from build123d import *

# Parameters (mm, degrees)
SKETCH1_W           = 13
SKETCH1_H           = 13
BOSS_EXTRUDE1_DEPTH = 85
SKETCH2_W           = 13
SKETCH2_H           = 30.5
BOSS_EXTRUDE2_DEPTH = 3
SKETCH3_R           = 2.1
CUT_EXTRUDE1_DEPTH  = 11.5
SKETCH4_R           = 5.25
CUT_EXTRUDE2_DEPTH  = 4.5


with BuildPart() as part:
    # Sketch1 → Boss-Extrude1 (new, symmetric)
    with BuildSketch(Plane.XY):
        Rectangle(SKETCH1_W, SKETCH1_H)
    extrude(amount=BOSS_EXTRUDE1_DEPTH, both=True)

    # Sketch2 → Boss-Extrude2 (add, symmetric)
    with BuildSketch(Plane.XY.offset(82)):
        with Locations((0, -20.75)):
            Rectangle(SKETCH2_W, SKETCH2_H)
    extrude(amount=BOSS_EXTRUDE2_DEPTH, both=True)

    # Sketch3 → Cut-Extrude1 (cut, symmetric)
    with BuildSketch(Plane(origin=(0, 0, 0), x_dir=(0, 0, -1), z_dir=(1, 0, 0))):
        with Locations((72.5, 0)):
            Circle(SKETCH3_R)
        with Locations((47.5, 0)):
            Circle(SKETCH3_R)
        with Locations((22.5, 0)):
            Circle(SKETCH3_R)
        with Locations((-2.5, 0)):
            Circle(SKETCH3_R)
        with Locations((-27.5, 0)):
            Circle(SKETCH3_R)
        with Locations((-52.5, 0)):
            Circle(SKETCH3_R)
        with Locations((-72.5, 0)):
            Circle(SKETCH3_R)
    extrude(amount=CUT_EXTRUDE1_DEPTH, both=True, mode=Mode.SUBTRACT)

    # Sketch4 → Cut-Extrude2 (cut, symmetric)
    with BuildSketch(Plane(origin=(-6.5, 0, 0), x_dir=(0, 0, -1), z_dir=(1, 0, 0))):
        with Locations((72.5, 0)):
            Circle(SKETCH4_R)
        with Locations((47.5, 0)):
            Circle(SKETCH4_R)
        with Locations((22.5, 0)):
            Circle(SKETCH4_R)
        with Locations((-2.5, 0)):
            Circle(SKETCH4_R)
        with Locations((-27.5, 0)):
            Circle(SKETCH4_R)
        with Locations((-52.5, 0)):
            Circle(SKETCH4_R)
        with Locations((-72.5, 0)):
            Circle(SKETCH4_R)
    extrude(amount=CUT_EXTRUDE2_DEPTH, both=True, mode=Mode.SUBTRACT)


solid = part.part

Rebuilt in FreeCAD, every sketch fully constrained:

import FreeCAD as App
import Part
import Sketcher

V = App.Vector


def add_polygon(sketch, points):
    """Adds a closed chain of lines whose ends are joined by coincident constraints."""
    first, n = sketch.GeometryCount, len(points)
    for a, b in zip(points, points[1:] + points[:1]):
        sketch.addGeometry(Part.LineSegment(App.Vector(*a, 0), App.Vector(*b, 0)), False)
    for i in range(n):
        sketch.addConstraint(Sketcher.Constraint("Coincident", first + i, 2, first + (i + 1) % n, 1))

doc = App.newDocument("Part")
body = doc.addObject("PartDesign::Body", "Body")

# Sketch on XY plane
sketch1 = body.newObject("Sketcher::SketchObject", "Sketch")
sketch1.AttachmentSupport = (doc.getObject("XY_Plane"), [""])
sketch1.MapMode = "FlatFace"
add_polygon(sketch1, [(-6, 6), (-6, -6), (6, -6), (6, 6)])  # lines 0-3
sketch1.addConstraint(Sketcher.Constraint("Vertical", 0))
sketch1.addConstraint(Sketcher.Constraint("Horizontal", 1))
sketch1.addConstraint(Sketcher.Constraint("Vertical", 2))
sketch1.addConstraint(Sketcher.Constraint("Horizontal", 3))
sketch1.addConstraint(Sketcher.Constraint("Symmetric", 0, 2, 2, 2, -1, 1))
sketch1.addConstraint(Sketcher.Constraint("Equal", 3, 0))
sketch1.addConstraint(Sketcher.Constraint("DistanceX", 1, 1, 1, 2, 13.0))
pad1 = body.newObject("PartDesign::Pad", "Pad")
pad1.Profile = sketch1
pad1.Length = 170
pad1.Midplane = True

# Sketch on XY plane
sketch2 = body.newObject("Sketcher::SketchObject", "Sketch001")
sketch2.AttachmentSupport = (doc.getObject("XY_Plane"), [""])
sketch2.MapMode = "FlatFace"
sketch2.AttachmentOffset = App.Placement(V(0, 0, 82), App.Rotation())
add_polygon(sketch2, [(-6, -6), (-6, -36), (6, -36), (6, -6)])  # lines 0-3
sketch2.addConstraint(Sketcher.Constraint("Vertical", 0))
sketch2.addConstraint(Sketcher.Constraint("Horizontal", 1))
sketch2.addConstraint(Sketcher.Constraint("Vertical", 2))
sketch2.addConstraint(Sketcher.Constraint("Horizontal", 3))
sketch2.addConstraint(Sketcher.Constraint("DistanceX", 1, 1, 1, 2, 13.0))
sketch2.addConstraint(Sketcher.Constraint("DistanceY", 0, 2, 0, 1, 30.5))
sketch2.addConstraint(Sketcher.Constraint("DistanceY", 0, 2, -1, 1, 36.0))
sketch2.addConstraint(Sketcher.Constraint("DistanceX", 0, 2, -1, 1, 6.5))
pad2 = body.newObject("PartDesign::Pad", "Pad001")
pad2.Profile = sketch2
pad2.Length = 6
pad2.Midplane = True

# Sketch on YZ plane
sketch3 = body.newObject("Sketcher::SketchObject", "Sketch002")
sketch3.AttachmentSupport = (doc.getObject("YZ_Plane"), [""])
sketch3.MapMode = "FlatFace"
sketch3.addGeometry(Part.Circle(V(0, -72.5, 0), V(0, 0, 1), 2.1), False)
sketch3.addGeometry(Part.Circle(V(0, -47.5, 0), V(0, 0, 1), 2.1), False)
sketch3.addGeometry(Part.Circle(V(0, -22.5, 0), V(0, 0, 1), 2.1), False)
sketch3.addGeometry(Part.Circle(V(0, 2.5, 0), V(0, 0, 1), 2.1), False)
sketch3.addGeometry(Part.Circle(V(0, 27.5, 0), V(0, 0, 1), 2.1), False)
sketch3.addGeometry(Part.Circle(V(0, 52.5, 0), V(0, 0, 1), 2.1), False)
sketch3.addGeometry(Part.Circle(V(0, 72.5, 0), V(0, 0, 1), 2.1), False)
sketch3.addConstraint(Sketcher.Constraint("Equal", 0, 1))
sketch3.addConstraint(Sketcher.Constraint("Equal", 1, 2))
sketch3.addConstraint(Sketcher.Constraint("Equal", 2, 3))
sketch3.addConstraint(Sketcher.Constraint("Equal", 3, 4))
sketch3.addConstraint(Sketcher.Constraint("Equal", 4, 5))
sketch3.addConstraint(Sketcher.Constraint("Equal", 5, 6))
sketch3.addConstraint(Sketcher.Constraint("Symmetric", 0, 3, 6, 3, -1, 1))
sketch3.addConstraint(Sketcher.Constraint("PointOnObject", 0, 3, -2))
sketch3.addConstraint(Sketcher.Constraint("PointOnObject", 1, 3, -2))
sketch3.addConstraint(Sketcher.Constraint("PointOnObject", 2, 3, -2))
sketch3.addConstraint(Sketcher.Constraint("PointOnObject", 3, 3, -2))
sketch3.addConstraint(Sketcher.Constraint("PointOnObject", 4, 3, -2))
sketch3.addConstraint(Sketcher.Constraint("PointOnObject", 5, 3, -2))
sketch3.addConstraint(Sketcher.Constraint("Diameter", 0, 4.2))
sketch3.addConstraint(Sketcher.Constraint("DistanceY", 0, 3, 1, 3, 25.0))
sketch3.addConstraint(Sketcher.Constraint("DistanceY", 1, 3, 2, 3, 25.0))
sketch3.addConstraint(Sketcher.Constraint("DistanceY", 2, 3, 3, 3, 25.0))
sketch3.addConstraint(Sketcher.Constraint("DistanceY", 3, 3, 4, 3, 25.0))
sketch3.addConstraint(Sketcher.Constraint("DistanceY", 4, 3, 5, 3, 25.0))
sketch3.addConstraint(Sketcher.Constraint("DistanceY", 5, 3, 6, 3, 20.0))
pocket1 = body.newObject("PartDesign::Pocket", "Pocket")
pocket1.Profile = sketch3
pocket1.Length = 23
pocket1.Midplane = True

# Sketch on YZ plane
sketch4 = body.newObject("Sketcher::SketchObject", "Sketch003")
sketch4.AttachmentSupport = (doc.getObject("YZ_Plane"), [""])
sketch4.MapMode = "FlatFace"
sketch4.AttachmentOffset = App.Placement(V(0, 0, -6.5), App.Rotation())
sketch4.addGeometry(Part.Circle(V(0, -72, 0), V(0, 0, 1), 5), False)
sketch4.addGeometry(Part.Circle(V(0, -48, 0), V(0, 0, 1), 5), False)
sketch4.addGeometry(Part.Circle(V(0, -22, 0), V(0, 0, 1), 5), False)
sketch4.addGeometry(Part.Circle(V(0, 2, 0), V(0, 0, 1), 5), False)
sketch4.addGeometry(Part.Circle(V(0, 28, 0), V(0, 0, 1), 5), False)
sketch4.addGeometry(Part.Circle(V(0, 52, 0), V(0, 0, 1), 5), False)
sketch4.addGeometry(Part.Circle(V(0, 72, 0), V(0, 0, 1), 5), False)
sketch4.addConstraint(Sketcher.Constraint("Equal", 0, 1))
sketch4.addConstraint(Sketcher.Constraint("Equal", 1, 2))
sketch4.addConstraint(Sketcher.Constraint("Equal", 2, 3))
sketch4.addConstraint(Sketcher.Constraint("Equal", 3, 4))
sketch4.addConstraint(Sketcher.Constraint("Equal", 4, 5))
sketch4.addConstraint(Sketcher.Constraint("Equal", 5, 6))
sketch4.addConstraint(Sketcher.Constraint("Symmetric", 0, 3, 6, 3, -1, 1))
sketch4.addConstraint(Sketcher.Constraint("PointOnObject", 0, 3, -2))
sketch4.addConstraint(Sketcher.Constraint("PointOnObject", 1, 3, -2))
sketch4.addConstraint(Sketcher.Constraint("PointOnObject", 2, 3, -2))
sketch4.addConstraint(Sketcher.Constraint("PointOnObject", 3, 3, -2))
sketch4.addConstraint(Sketcher.Constraint("PointOnObject", 4, 3, -2))
sketch4.addConstraint(Sketcher.Constraint("PointOnObject", 5, 3, -2))
sketch4.addConstraint(Sketcher.Constraint("Diameter", 0, 10.5))
sketch4.addConstraint(Sketcher.Constraint("DistanceY", 0, 3, 1, 3, 25.0))
sketch4.addConstraint(Sketcher.Constraint("DistanceY", 1, 3, 2, 3, 25.0))
sketch4.addConstraint(Sketcher.Constraint("DistanceY", 2, 3, 3, 3, 25.0))
sketch4.addConstraint(Sketcher.Constraint("DistanceY", 3, 3, 4, 3, 25.0))
sketch4.addConstraint(Sketcher.Constraint("DistanceY", 4, 3, 5, 3, 25.0))
sketch4.addConstraint(Sketcher.Constraint("DistanceY", 5, 3, 6, 3, 20.0))
pocket2 = body.newObject("PartDesign::Pocket", "Pocket001")
pocket2.Profile = sketch4
pocket2.Length = 9
pocket2.Midplane = True

doc.recompute()
